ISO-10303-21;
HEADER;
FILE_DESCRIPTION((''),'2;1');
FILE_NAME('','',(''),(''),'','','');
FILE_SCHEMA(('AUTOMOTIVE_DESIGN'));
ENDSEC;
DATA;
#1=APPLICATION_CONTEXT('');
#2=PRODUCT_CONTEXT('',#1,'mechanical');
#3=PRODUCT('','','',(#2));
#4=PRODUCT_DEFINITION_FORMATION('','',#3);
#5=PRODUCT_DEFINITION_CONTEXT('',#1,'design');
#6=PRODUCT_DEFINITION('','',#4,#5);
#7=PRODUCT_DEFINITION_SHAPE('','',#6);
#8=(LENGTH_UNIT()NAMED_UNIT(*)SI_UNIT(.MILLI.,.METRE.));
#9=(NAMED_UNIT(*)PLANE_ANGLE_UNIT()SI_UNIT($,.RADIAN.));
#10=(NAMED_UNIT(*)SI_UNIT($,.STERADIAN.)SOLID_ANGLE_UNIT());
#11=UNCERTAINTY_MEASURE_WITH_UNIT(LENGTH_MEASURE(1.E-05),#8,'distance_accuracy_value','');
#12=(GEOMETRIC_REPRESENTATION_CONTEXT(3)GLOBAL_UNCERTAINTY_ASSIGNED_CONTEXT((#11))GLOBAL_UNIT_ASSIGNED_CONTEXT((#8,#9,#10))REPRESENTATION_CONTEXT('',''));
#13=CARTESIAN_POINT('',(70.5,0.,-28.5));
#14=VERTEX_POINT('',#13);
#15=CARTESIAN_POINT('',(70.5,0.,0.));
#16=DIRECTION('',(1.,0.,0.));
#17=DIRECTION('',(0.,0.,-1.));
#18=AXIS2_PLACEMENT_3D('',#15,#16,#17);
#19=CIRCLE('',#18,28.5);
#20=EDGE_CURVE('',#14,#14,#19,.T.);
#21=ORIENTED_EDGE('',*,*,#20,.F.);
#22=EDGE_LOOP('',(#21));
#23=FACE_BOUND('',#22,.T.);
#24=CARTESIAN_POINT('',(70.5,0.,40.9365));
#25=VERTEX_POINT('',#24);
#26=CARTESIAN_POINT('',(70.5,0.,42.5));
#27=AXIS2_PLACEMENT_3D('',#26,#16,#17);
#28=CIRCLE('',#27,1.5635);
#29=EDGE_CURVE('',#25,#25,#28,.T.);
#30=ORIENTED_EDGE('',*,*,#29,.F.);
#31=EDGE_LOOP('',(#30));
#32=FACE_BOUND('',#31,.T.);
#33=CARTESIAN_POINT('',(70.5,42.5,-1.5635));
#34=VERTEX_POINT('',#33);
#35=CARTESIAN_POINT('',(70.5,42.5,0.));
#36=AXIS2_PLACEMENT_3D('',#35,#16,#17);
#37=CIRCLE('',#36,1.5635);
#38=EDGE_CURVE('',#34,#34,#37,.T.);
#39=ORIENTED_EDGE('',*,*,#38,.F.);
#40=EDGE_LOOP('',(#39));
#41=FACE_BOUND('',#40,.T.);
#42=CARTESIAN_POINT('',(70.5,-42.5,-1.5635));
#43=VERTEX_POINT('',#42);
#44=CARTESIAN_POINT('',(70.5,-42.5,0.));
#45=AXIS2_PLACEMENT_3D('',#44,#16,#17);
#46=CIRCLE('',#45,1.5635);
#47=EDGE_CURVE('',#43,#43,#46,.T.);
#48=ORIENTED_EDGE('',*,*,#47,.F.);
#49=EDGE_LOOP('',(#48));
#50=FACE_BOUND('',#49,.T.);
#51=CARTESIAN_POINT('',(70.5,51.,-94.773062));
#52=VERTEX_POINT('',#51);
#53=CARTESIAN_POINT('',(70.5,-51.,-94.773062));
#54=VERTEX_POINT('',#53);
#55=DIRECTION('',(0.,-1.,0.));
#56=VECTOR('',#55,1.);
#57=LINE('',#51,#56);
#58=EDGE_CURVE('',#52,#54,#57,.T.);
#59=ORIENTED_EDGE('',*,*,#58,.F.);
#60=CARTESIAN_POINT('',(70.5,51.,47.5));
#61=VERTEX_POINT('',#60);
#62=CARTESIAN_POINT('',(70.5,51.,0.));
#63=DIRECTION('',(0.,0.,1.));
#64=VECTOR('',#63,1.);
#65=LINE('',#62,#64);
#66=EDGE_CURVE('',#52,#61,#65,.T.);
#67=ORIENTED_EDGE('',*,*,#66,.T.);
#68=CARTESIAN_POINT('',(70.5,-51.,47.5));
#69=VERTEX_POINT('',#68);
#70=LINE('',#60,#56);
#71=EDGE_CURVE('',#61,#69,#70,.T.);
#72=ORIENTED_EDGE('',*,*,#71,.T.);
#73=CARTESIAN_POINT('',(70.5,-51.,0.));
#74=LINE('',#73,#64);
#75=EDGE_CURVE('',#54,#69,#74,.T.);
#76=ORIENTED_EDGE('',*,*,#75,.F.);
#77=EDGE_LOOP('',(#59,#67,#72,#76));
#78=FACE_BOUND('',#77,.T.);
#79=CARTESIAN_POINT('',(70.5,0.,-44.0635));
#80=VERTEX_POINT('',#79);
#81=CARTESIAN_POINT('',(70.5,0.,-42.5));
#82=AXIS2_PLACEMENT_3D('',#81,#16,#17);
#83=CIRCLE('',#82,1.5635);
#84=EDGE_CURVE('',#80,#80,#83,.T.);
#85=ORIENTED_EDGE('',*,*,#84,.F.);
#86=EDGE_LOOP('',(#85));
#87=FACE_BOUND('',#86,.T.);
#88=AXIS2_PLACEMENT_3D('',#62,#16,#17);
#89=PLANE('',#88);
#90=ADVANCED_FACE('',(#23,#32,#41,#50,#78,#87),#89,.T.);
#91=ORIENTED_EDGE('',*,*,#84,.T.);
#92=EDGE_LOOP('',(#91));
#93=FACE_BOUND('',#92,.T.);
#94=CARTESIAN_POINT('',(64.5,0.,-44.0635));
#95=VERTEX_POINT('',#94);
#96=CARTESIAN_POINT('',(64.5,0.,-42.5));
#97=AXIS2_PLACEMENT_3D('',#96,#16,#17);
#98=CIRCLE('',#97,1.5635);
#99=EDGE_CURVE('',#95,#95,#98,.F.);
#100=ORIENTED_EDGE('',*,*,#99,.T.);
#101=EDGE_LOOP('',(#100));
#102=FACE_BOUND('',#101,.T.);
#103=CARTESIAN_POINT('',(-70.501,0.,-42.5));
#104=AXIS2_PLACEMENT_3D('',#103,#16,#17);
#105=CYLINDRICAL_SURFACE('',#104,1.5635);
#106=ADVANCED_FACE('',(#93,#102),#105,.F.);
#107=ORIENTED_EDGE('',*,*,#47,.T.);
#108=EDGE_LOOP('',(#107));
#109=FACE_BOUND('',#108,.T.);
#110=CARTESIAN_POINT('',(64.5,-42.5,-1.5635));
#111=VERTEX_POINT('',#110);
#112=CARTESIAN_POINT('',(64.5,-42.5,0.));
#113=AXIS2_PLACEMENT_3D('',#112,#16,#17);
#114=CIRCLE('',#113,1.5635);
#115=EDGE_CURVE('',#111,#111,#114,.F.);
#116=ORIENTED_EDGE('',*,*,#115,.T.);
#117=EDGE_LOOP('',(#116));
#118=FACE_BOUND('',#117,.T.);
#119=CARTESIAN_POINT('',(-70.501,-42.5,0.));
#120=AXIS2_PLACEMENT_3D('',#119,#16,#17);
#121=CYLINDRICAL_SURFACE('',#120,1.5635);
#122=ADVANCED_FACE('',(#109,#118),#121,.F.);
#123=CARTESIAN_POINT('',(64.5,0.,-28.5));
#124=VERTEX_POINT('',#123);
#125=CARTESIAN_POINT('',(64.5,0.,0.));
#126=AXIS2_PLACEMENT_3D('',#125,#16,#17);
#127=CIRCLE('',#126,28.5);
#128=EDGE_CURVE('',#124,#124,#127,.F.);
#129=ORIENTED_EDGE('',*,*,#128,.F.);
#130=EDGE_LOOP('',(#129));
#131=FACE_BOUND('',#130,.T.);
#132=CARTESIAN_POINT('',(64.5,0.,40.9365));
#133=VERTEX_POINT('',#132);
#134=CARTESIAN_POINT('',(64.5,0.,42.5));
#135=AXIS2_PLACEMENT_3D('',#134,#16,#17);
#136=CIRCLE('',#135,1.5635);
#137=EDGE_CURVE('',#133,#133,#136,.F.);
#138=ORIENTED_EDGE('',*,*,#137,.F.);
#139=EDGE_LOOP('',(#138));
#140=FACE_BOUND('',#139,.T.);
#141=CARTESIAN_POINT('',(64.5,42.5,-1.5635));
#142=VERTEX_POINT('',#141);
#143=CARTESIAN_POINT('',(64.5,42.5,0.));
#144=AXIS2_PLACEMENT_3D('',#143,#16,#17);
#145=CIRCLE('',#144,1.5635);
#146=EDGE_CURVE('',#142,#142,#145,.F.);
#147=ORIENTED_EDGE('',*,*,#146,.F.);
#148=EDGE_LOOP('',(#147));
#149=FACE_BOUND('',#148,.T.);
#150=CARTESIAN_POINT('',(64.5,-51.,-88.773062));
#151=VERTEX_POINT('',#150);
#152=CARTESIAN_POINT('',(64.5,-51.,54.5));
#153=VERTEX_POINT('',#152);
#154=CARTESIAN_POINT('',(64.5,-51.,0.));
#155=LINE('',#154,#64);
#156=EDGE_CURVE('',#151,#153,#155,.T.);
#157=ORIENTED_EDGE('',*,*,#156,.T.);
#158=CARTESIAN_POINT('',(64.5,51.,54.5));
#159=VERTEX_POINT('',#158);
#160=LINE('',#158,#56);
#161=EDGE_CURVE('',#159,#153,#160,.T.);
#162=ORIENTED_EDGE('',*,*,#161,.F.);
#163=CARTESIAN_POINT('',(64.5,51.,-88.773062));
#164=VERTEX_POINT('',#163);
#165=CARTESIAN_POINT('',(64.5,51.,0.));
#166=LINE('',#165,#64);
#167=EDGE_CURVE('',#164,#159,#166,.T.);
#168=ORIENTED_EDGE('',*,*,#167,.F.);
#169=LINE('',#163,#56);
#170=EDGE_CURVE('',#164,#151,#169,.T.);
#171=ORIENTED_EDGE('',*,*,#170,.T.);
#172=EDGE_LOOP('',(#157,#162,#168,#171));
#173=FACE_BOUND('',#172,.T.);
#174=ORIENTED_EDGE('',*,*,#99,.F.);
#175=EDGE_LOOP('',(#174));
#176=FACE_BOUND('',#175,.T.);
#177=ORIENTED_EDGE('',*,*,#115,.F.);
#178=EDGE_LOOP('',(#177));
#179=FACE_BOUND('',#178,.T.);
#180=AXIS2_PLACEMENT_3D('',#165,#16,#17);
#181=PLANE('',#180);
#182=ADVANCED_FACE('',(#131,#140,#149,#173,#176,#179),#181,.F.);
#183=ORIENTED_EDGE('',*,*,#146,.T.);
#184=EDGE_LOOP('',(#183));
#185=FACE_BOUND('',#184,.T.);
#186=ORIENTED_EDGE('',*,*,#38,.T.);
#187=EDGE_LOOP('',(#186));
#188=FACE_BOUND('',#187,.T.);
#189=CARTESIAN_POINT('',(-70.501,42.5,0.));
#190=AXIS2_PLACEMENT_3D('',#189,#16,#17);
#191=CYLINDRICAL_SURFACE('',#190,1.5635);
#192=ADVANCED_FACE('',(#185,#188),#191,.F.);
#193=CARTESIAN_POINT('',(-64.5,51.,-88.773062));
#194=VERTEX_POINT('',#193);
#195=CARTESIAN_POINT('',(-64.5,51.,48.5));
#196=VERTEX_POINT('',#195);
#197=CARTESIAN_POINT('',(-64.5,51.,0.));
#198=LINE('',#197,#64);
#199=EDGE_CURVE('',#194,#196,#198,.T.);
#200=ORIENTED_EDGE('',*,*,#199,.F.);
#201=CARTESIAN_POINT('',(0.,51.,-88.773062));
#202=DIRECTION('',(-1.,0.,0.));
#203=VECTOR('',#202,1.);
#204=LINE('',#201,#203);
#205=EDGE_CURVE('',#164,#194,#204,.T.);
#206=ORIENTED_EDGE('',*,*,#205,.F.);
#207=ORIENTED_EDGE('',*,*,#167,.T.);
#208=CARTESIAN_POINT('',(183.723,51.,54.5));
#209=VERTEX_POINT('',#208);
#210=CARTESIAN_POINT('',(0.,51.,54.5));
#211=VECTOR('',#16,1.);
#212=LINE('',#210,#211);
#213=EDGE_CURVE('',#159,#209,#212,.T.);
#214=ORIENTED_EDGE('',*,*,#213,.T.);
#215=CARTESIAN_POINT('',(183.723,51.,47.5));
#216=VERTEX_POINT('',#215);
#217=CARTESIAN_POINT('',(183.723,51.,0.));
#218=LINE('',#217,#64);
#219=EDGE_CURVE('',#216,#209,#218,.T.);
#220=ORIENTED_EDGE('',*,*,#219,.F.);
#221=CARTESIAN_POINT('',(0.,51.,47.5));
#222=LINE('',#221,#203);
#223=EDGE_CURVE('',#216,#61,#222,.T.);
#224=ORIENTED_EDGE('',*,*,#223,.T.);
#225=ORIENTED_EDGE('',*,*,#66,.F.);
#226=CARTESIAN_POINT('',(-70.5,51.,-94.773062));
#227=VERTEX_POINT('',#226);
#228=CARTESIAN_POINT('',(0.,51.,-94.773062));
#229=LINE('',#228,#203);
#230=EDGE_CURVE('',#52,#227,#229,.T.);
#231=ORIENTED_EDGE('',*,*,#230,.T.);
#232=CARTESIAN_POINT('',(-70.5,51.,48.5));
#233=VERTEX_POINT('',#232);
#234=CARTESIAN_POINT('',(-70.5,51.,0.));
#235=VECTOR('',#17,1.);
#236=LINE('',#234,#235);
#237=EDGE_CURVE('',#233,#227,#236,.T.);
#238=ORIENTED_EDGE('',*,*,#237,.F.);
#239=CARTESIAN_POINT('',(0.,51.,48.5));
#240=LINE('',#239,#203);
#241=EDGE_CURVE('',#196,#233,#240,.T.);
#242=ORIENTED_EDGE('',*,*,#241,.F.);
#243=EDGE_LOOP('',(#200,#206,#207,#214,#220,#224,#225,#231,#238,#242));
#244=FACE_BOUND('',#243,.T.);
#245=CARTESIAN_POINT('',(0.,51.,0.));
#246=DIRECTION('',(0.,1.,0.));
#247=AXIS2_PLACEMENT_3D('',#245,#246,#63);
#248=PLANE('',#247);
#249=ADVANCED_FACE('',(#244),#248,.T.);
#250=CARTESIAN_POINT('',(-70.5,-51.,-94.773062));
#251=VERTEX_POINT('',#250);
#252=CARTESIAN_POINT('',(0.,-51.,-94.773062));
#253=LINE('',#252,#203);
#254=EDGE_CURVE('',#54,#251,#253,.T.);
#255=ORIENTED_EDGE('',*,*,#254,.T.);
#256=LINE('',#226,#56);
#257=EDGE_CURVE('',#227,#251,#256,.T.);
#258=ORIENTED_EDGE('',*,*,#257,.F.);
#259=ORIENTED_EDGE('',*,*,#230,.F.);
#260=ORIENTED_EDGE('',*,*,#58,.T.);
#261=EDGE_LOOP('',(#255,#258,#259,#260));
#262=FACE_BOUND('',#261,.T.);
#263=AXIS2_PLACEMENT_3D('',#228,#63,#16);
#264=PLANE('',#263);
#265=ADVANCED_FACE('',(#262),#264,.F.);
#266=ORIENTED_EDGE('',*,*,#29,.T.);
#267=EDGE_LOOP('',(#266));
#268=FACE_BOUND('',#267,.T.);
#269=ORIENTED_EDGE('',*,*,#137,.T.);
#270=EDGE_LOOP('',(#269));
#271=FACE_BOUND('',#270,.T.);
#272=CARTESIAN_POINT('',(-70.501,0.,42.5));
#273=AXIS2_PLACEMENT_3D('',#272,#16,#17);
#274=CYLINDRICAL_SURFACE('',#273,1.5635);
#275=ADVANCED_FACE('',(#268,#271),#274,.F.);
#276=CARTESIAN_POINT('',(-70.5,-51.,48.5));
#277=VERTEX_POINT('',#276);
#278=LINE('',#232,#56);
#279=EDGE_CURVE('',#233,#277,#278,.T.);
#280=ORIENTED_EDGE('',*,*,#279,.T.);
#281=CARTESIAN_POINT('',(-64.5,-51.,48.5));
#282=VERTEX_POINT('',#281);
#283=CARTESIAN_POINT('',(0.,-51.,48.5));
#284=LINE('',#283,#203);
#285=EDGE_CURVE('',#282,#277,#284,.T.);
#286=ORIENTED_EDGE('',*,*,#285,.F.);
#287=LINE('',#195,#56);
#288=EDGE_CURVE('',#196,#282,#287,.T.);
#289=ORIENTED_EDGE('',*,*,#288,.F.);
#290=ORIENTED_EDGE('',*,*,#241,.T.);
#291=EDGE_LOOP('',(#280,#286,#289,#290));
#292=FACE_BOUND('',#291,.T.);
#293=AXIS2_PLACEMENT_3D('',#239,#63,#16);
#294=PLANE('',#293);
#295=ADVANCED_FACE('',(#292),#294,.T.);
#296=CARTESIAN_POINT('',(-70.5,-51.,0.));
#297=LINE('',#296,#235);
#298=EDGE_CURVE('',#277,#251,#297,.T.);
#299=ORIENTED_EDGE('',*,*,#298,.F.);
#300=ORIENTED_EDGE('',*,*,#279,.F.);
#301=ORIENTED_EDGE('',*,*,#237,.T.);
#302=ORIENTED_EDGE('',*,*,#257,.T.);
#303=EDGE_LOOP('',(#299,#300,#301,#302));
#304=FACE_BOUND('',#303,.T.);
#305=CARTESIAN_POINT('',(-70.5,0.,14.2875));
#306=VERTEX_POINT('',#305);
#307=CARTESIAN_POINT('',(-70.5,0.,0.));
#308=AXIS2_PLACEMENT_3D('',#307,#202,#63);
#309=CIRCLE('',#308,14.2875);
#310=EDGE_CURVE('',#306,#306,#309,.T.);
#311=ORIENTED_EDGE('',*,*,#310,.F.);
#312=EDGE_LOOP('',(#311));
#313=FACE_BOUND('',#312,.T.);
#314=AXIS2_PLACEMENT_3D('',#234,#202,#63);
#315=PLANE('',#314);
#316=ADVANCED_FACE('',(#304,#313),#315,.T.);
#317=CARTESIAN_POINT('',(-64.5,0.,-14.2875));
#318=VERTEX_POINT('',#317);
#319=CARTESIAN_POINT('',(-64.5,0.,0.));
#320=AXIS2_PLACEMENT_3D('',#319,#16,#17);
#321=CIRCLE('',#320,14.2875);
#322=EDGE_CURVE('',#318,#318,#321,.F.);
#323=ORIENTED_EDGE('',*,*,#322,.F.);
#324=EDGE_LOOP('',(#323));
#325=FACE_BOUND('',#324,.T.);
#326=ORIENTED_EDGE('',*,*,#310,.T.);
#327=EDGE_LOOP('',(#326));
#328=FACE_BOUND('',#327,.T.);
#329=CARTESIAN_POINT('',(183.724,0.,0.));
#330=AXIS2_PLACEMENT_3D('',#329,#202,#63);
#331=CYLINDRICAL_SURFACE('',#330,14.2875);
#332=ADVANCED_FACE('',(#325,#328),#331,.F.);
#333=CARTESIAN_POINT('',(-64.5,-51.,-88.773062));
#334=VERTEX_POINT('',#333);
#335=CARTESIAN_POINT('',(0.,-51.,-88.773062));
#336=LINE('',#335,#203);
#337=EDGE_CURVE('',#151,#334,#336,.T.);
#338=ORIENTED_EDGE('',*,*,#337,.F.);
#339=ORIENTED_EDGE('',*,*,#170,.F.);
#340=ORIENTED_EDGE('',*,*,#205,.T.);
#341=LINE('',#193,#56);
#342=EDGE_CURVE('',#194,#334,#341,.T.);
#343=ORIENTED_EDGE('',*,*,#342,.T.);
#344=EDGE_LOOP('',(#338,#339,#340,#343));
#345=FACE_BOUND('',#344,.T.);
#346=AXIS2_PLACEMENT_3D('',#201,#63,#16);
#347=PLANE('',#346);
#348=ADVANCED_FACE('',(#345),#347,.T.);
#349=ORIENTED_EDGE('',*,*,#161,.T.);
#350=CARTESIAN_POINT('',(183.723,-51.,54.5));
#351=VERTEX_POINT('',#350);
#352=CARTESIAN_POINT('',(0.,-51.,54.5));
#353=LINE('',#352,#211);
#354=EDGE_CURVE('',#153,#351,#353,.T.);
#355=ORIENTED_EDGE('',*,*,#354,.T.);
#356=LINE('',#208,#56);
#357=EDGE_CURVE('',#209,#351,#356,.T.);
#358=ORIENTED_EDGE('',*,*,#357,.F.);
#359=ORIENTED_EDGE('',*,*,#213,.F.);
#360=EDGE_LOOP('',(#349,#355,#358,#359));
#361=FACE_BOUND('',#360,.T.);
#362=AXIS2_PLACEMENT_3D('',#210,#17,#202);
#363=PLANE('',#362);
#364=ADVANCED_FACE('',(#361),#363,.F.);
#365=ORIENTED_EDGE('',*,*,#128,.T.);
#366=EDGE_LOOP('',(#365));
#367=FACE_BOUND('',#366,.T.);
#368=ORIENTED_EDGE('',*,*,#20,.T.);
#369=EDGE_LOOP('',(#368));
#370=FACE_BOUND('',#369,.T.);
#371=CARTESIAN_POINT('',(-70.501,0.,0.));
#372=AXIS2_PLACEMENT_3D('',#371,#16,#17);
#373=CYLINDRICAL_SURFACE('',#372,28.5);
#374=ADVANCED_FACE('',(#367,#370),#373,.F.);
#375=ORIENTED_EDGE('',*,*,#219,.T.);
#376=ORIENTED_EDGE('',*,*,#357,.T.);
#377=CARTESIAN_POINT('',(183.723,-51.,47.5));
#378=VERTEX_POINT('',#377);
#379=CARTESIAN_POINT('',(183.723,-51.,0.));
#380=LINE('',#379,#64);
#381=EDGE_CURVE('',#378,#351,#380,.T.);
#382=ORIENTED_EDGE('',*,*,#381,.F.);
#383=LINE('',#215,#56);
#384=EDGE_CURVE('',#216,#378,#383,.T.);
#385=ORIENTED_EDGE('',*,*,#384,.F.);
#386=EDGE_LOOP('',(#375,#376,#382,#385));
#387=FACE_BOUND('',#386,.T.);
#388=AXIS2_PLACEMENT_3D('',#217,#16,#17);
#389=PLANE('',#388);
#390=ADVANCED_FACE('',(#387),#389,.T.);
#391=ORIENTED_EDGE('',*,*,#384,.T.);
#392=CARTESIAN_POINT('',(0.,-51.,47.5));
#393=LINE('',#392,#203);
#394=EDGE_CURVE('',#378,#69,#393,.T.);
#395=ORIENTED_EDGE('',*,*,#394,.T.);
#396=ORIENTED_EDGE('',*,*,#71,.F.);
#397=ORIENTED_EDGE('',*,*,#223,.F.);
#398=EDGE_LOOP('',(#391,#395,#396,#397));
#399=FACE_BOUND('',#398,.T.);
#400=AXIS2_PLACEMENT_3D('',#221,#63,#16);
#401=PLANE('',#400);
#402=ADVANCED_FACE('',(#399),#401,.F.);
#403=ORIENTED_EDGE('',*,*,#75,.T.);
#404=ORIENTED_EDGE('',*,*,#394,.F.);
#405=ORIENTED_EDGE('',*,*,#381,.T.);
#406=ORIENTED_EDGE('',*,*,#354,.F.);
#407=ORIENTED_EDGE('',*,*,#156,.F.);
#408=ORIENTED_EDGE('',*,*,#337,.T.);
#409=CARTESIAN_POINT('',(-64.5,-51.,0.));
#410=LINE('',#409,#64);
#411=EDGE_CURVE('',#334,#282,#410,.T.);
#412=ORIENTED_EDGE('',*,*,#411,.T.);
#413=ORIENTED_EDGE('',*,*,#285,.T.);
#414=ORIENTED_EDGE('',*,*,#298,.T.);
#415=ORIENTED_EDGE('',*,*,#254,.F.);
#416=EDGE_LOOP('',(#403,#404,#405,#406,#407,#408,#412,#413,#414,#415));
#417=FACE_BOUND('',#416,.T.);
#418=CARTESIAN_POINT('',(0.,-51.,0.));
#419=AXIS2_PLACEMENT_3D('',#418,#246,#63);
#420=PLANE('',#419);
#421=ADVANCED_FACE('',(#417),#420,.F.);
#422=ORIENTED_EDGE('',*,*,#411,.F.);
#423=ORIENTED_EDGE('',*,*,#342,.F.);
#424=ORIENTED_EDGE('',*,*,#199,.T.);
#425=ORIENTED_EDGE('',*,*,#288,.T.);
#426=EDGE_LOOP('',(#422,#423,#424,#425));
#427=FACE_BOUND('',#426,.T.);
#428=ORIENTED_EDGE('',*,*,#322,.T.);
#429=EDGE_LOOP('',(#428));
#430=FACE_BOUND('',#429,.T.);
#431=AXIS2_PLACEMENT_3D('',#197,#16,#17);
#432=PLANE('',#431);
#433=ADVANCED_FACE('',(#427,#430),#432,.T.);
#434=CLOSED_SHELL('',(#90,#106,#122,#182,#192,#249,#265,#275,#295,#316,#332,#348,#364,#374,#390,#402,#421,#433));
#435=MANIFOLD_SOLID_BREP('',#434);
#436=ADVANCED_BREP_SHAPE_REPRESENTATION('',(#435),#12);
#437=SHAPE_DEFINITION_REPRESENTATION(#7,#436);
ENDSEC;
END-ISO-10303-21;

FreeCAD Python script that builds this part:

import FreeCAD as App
import Part
import Sketcher
from FreeCAD import Vector


def add_polygon(sketch, points):
    """Adds a closed chain of lines whose ends are joined by coincident constraints."""
    first, n = sketch.GeometryCount, len(points)
    for a, b in zip(points, points[1:] + points[:1]):
        sketch.addGeometry(Part.LineSegment(App.Vector(*a, 0), App.Vector(*b, 0)), False)
    for i in range(n):
        sketch.addConstraint(Sketcher.Constraint("Coincident", first + i, 2, first + (i + 1) % n, 1))

doc = App.newDocument("Part")
body = doc.addObject("PartDesign::Body", "Body")

# Sketch on XZ plane
sketch1 = body.newObject("Sketcher::SketchObject", "Sketch")
sketch1.AttachmentSupport = (doc.getObject("XZ_Plane"), [""])
sketch1.MapMode = "FlatFace"
add_polygon(sketch1, [(183.723, 54.5), (183.723, 47.5), (70.5, 47.5), (70.5, -94.773062), (-70.5, -94.773062), (-70.5, 48.5), (-64.5, 48.5), (-64.5, -88.773062), (64.5, -88.773062), (64.5, 54.5)])  # lines 0-9
sketch1.addConstraint(Sketcher.Constraint("Vertical", 0))
sketch1.addConstraint(Sketcher.Constraint("Horizontal", 1))
sketch1.addConstraint(Sketcher.Constraint("Vertical", 2))
sketch1.addConstraint(Sketcher.Constraint("Horizontal", 3))
sketch1.addConstraint(Sketcher.Constraint("Vertical", 4))
sketch1.addConstraint(Sketcher.Constraint("Horizontal", 5))
sketch1.addConstraint(Sketcher.Constraint("Vertical", 6))
sketch1.addConstraint(Sketcher.Constraint("Horizontal", 7))
sketch1.addConstraint(Sketcher.Constraint("Vertical", 8))
sketch1.addConstraint(Sketcher.Constraint("Horizontal", 9))
sketch1.addConstraint(Sketcher.Constraint("Equal", 4, 8))
sketch1.addConstraint(Sketcher.Constraint("DistanceX", 3, 2, 3, 1, 141.0))
sketch1.addConstraint(Sketcher.Constraint("DistanceX", 5, 1, 5, 2, 6.0))
sketch1.addConstraint(Sketcher.Constraint("DistanceX", 7, 1, 7, 2, 129.0))
sketch1.addConstraint(Sketcher.Constraint("DistanceY", 0, 2, 0, 1, 7.0))
sketch1.addConstraint(Sketcher.Constraint("DistanceY", 1, 2, 4, 2, 1.0))
sketch1.addConstraint(Sketcher.Constraint("DistanceY", -1, 1, 0, 2, 47.5))
sketch1.addConstraint(Sketcher.Constraint("DistanceX", -1, 1, 1, 2, 70.5))
sketch1.addConstraint(Sketcher.Constraint("DistanceX", 1, 2, 1, 1, 113.223))
sketch1.addConstraint(Sketcher.Constraint("DistanceY", 2, 2, 2, 1, 142.273062))
pad1 = body.newObject("PartDesign::Pad", "Pad")
pad1.Profile = sketch1
pad1.Type = "TwoLengths"
pad1.Length = 51
pad1.Length2 = 51
pad1.Reversed = True

# Sketch on YZ plane
sketch2 = body.newObject("Sketcher::SketchObject", "Sketch001")
sketch2.AttachmentSupport = (doc.getObject("YZ_Plane"), [""])
sketch2.MapMode = "FlatFace"
sketch2.AttachmentOffset = App.Placement(Vector(0, 0, 70.5), App.Rotation())
sketch2.addGeometry(Part.Circle(Vector(42.5, 0, 0), Vector(0, 0, 1), 1.5635), False)
sketch2.addConstraint(Sketcher.Constraint("PointOnObject", 0, 3, -1))
sketch2.addConstraint(Sketcher.Constraint("Diameter", 0, 3.127))
sketch2.addConstraint(Sketcher.Constraint("DistanceX", -1, 1, 0, 3, 42.5))
pocket1 = body.newObject("PartDesign::Pocket", "Pocket")
pocket1.Profile = sketch2
pocket1.Type = "UpToFirst"

# Sketch on YZ plane
sketch3 = body.newObject("Sketcher::SketchObject", "Sketch002")
sketch3.AttachmentSupport = (doc.getObject("YZ_Plane"), [""])
sketch3.MapMode = "FlatFace"
sketch3.AttachmentOffset = App.Placement(Vector(0, 0, 70.5), App.Rotation())
sketch3.addGeometry(Part.Circle(Vector(0, -42.5, 0), Vector(0, 0, 1), 1.5635), False)
sketch3.addConstraint(Sketcher.Constraint("PointOnObject", 0, 3, -2))
sketch3.addConstraint(Sketcher.Constraint("Diameter", 0, 3.127))
sketch3.addConstraint(Sketcher.Constraint("DistanceY", 0, 3, -1, 1, 42.5))
pocket2 = body.newObject("PartDesign::Pocket", "Pocket001")
pocket2.Profile = sketch3
pocket2.Type = "UpToFirst"

# Sketch on YZ plane
sketch4 = body.newObject("Sketcher::SketchObject", "Sketch003")
sketch4.AttachmentSupport = (doc.getObject("YZ_Plane"), [""])
sketch4.MapMode = "FlatFace"
sketch4.AttachmentOffset = App.Placement(Vector(0, 0, 70.5), App.Rotation())
sketch4.addGeometry(Part.Circle(Vector(-42.5, 0, 0), Vector(0, 0, 1), 1.5635), False)
sketch4.addConstraint(Sketcher.Constraint("PointOnObject", 0, 3, -1))
sketch4.addConstraint(Sketcher.Constraint("Diameter", 0, 3.127))
sketch4.addConstraint(Sketcher.Constraint("DistanceX", 0, 3, -1, 1, 42.5))
pocket3 = body.newObject("PartDesign::Pocket", "Pocket002")
pocket3.Profile = sketch4
pocket3.Type = "UpToFirst"

# Sketch on YZ plane
sketch5 = body.newObject("Sketcher::SketchObject", "Sketch004")
sketch5.AttachmentSupport = (doc.getObject("YZ_Plane"), [""])
sketch5.MapMode = "FlatFace"
sketch5.AttachmentOffset = App.Placement(Vector(0, 0, 70.5), App.Rotation())
sketch5.addGeometry(Part.Circle(Vector(0, 42.5, 0), Vector(0, 0, 1), 1.5635), False)
sketch5.addConstraint(Sketcher.Constraint("PointOnObject", 0, 3, -2))
sketch5.addConstraint(Sketcher.Constraint("Diameter", 0, 3.127))
sketch5.addConstraint(Sketcher.Constraint("DistanceY", -1, 1, 0, 3, 42.5))
pocket4 = body.newObject("PartDesign::Pocket", "Pocket003")
pocket4.Profile = sketch5
pocket4.Type = "UpToFirst"

# Sketch on YZ plane
sketch6 = body.newObject("Sketcher::SketchObject", "Sketch005")
sketch6.AttachmentSupport = (doc.getObject("YZ_Plane"), [""])
sketch6.MapMode = "FlatFace"
sketch6.AttachmentOffset = App.Placement(Vector(0, 0, 70.5), App.Rotation())
sketch6.addGeometry(Part.Circle(Vector(0, 0, 0), Vector(0, 0, 1), 28.5), False)
sketch6.addConstraint(Sketcher.Constraint("Coincident", 0, 3, -1, 1))
sketch6.addConstraint(Sketcher.Constraint("Diameter", 0, 57.0))
pocket5 = body.newObject("PartDesign::Pocket", "Pocket004")
pocket5.Profile = sketch6
pocket5.Type = "UpToFirst"

# Sketch on YZ plane
sketch7 = body.newObject("Sketcher::SketchObject", "Sketch006")
sketch7.AttachmentSupport = (doc.getObject("YZ_Plane"), [""])
sketch7.MapMode = "FlatFace"
sketch7.AttachmentOffset = App.Placement(Vector(0, 0, -70.5), App.Rotation())
sketch7.addGeometry(Part.Circle(Vector(0, 0, 0), Vector(0, 0, 1), 14.2875), False)
sketch7.addConstraint(Sketcher.Constraint("Coincident", 0, 3, -1, 1))
sketch7.addConstraint(Sketcher.Constraint("Diameter", 0, 28.575))
pocket6 = body.newObject("PartDesign::Pocket", "Pocket005")
pocket6.Profile = sketch7
pocket6.Type = "UpToFirst"
pocket6.Reversed = True

doc.recompute()
